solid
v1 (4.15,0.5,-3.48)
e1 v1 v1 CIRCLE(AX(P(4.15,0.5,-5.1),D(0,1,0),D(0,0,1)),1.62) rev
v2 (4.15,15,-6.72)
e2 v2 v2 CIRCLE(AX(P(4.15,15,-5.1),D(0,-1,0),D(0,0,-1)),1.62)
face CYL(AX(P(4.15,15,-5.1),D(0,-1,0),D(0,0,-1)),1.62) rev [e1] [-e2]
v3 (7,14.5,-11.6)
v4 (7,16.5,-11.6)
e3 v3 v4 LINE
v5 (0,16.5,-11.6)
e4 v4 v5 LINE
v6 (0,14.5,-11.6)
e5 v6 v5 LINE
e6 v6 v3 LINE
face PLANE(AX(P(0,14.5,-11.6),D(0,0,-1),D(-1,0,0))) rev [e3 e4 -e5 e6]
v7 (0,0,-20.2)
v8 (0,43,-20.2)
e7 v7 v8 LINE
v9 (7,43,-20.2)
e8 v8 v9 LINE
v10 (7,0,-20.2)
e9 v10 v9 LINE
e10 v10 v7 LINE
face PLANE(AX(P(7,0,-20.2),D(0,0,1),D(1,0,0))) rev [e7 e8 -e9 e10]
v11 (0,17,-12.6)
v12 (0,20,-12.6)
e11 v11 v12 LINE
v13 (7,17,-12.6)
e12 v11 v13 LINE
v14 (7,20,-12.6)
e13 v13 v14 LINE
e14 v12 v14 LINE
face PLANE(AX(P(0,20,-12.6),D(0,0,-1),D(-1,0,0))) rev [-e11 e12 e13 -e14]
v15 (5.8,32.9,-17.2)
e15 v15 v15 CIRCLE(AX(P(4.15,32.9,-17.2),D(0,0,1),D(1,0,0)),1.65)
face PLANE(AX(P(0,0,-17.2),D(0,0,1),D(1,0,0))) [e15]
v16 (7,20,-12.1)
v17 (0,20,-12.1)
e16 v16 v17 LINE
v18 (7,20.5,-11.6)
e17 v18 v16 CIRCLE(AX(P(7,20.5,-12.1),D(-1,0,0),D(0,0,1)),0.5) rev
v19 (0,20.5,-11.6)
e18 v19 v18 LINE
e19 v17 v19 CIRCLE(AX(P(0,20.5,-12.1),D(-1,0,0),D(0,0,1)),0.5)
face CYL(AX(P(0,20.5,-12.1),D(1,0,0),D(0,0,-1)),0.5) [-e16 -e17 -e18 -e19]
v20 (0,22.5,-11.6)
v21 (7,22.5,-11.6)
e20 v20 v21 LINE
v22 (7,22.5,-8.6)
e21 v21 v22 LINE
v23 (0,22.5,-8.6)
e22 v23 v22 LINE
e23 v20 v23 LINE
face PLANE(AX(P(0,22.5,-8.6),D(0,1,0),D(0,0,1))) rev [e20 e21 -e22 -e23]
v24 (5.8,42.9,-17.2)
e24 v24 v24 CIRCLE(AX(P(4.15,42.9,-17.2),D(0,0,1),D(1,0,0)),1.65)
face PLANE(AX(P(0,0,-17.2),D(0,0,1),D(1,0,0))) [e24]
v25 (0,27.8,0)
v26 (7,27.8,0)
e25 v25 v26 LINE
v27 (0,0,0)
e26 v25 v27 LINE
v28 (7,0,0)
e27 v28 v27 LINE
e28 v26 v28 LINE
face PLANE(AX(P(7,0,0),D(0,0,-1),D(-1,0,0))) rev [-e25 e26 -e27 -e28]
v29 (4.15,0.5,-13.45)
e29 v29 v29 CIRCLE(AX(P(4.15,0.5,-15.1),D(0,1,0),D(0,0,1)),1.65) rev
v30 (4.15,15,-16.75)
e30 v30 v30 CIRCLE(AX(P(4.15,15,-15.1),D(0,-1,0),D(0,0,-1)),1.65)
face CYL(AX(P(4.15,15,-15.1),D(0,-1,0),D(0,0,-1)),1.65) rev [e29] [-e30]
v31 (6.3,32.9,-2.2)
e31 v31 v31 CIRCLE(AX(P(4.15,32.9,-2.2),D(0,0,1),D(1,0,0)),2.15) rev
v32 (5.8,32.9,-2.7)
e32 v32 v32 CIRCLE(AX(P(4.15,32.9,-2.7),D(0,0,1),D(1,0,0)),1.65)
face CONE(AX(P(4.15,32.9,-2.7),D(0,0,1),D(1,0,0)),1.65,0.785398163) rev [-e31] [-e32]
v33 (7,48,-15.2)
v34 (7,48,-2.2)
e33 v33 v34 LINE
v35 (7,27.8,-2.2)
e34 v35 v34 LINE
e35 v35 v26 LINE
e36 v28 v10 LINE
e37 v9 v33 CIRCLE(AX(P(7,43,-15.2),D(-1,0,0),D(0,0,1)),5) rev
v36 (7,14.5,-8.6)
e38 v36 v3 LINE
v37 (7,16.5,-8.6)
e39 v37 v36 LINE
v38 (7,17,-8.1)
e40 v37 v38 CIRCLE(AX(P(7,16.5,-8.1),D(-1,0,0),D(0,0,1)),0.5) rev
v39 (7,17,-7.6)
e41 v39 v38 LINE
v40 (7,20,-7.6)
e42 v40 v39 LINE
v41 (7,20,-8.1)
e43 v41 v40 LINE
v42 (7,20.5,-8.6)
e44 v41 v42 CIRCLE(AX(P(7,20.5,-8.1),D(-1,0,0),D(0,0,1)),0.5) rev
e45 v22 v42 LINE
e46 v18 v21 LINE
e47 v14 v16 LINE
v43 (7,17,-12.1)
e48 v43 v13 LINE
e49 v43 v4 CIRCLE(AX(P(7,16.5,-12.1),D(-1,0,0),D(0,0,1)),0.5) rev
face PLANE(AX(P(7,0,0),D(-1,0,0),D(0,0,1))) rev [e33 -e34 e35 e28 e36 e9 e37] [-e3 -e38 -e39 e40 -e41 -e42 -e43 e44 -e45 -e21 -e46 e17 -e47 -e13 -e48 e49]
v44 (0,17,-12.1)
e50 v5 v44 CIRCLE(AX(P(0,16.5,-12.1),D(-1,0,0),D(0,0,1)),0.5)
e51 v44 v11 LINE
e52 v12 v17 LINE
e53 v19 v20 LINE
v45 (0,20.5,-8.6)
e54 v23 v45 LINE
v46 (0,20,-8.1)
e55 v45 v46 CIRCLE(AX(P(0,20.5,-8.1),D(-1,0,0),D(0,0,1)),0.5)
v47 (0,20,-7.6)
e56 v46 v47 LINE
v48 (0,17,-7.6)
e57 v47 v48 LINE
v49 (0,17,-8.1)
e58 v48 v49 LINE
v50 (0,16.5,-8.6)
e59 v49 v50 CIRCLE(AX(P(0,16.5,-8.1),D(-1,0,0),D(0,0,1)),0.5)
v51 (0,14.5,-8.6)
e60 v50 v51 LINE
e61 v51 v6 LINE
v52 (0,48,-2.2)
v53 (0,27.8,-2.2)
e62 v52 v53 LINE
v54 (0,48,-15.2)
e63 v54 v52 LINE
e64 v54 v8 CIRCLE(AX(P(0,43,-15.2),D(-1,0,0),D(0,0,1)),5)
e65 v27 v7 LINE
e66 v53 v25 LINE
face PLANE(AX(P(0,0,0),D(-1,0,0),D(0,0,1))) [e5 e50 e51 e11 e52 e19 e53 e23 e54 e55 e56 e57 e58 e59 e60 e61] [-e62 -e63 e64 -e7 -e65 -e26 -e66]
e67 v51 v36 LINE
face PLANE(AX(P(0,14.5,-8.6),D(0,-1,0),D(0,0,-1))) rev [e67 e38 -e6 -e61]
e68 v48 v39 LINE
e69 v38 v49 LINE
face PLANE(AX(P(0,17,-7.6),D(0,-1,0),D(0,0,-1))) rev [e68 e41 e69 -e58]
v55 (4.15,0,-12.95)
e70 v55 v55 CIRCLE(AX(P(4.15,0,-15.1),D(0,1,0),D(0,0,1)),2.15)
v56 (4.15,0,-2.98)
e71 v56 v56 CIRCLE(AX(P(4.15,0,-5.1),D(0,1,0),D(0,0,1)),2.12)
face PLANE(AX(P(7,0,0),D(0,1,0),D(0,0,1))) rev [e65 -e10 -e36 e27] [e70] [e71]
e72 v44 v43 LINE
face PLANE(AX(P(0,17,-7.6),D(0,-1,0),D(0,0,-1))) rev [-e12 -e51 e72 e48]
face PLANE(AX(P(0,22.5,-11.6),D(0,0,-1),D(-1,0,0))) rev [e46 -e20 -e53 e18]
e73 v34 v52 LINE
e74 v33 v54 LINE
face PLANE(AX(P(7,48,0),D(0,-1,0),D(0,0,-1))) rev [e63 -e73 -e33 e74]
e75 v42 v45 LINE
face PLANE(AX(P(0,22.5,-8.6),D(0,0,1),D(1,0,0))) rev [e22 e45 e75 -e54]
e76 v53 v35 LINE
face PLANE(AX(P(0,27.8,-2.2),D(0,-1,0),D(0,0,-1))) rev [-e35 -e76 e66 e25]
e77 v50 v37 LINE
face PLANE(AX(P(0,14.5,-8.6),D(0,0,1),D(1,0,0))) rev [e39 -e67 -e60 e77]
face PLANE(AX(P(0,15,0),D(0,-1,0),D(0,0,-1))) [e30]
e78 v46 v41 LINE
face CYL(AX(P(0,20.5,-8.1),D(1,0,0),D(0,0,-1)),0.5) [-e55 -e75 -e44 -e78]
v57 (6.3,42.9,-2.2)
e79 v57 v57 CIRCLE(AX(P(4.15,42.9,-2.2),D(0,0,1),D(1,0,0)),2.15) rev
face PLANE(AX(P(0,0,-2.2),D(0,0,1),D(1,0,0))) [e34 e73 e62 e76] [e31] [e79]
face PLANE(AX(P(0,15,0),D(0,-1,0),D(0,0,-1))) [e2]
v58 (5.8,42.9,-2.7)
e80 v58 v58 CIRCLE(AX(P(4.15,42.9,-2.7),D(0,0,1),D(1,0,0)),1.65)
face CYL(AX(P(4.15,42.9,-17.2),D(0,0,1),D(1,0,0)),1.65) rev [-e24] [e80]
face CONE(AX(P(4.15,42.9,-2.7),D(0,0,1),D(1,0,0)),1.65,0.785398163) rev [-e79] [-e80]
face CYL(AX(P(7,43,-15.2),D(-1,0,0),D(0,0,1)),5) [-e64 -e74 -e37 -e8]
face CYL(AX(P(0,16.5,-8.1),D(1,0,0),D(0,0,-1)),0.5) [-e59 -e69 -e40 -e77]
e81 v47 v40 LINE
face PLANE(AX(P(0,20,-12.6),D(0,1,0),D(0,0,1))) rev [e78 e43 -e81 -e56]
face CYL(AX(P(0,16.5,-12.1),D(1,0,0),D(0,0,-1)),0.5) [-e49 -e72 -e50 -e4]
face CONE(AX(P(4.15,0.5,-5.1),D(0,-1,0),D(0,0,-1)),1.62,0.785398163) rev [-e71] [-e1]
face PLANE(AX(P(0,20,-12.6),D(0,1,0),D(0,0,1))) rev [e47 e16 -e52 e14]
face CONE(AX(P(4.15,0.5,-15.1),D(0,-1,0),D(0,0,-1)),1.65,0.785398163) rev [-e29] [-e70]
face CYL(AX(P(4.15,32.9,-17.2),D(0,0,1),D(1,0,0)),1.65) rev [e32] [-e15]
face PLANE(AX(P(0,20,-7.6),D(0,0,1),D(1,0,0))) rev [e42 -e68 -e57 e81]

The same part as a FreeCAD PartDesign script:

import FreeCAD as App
import Part
import Sketcher
from FreeCAD import Vector
Q = App.Units.Quantity


def edges_at(feature, points):
    """Names of the edges that pass closest to the given points."""
    edges = feature.Shape.Edges
    near = lambda p: min(range(len(edges)), key=lambda i: edges[i].distToShape(Part.Vertex(*p))[0])
    return sorted({f"Edge{near(p) + 1}" for p in points})

doc = App.newDocument("Part")
body = doc.addObject("PartDesign::Body", "Body")

# Sketch on YZ plane
sketch1 = body.newObject("Sketcher::SketchObject", "Sketch")
sketch1.AttachmentSupport = (doc.getObject("YZ_Plane"), [""])
sketch1.MapMode = "FlatFace"
sketch1.addGeometry([
    Part.LineSegment(Vector(48, 0, 0), Vector(0, 0, 0)),
    Part.LineSegment(Vector(0, 0, 0), Vector(0, -20, 0)),
    Part.LineSegment(Vector(0, -20, 0), Vector(48, -20, 0)),
    Part.LineSegment(Vector(48, -20, 0), Vector(48, 0, 0)),
], False)
sketch1.addConstraint([
    Sketcher.Constraint("Coincident", 0, 2, 1, 1),
    Sketcher.Constraint("Coincident", 1, 2, 2, 1),
    Sketcher.Constraint("Coincident", 2, 2, 3, 1),
    Sketcher.Constraint("Coincident", 3, 2, 0, 1),
    Sketcher.Constraint("Horizontal", 0),
    Sketcher.Constraint("Vertical", 1),
    Sketcher.Constraint("Horizontal", 2),
    Sketcher.Constraint("Vertical", 3),
    Sketcher.Constraint("Coincident", 0, 2, -1, 1),
    Sketcher.Constraint("DistanceX", 0, 2, 0, 1, Q("48 mm")),
    Sketcher.Constraint("DistanceY", 1, 2, 1, 1, Q("20.2 mm")),
])
pad1 = body.newObject("PartDesign::Pad", "Pad")
pad1.Profile = sketch1
pad1.Length = 7

# Sketch on XY plane
sketch2 = body.newObject("Sketcher::SketchObject", "Sketch001")
sketch2.AttachmentSupport = (doc.getObject("XY_Plane"), [""])
sketch2.MapMode = "FlatFace"
sketch2.addGeometry([
    Part.LineSegment(Vector(0, 48, 0), Vector(0, 28, 0)),
    Part.LineSegment(Vector(0, 28, 0), Vector(7, 28, 0)),
    Part.LineSegment(Vector(7, 28, 0), Vector(7, 48, 0)),
    Part.LineSegment(Vector(7, 48, 0), Vector(0, 48, 0)),
], False)
sketch2.addConstraint([
    Sketcher.Constraint("Coincident", 0, 2, 1, 1),
    Sketcher.Constraint("Coincident", 1, 2, 2, 1),
    Sketcher.Constraint("Coincident", 2, 2, 3, 1),
    Sketcher.Constraint("Coincident", 3, 2, 0, 1),
    Sketcher.Constraint("Vertical", 0),
    Sketcher.Constraint("Horizontal", 1),
    Sketcher.Constraint("Vertical", 2),
    Sketcher.Constraint("Horizontal", 3),
    Sketcher.Constraint("PointOnObject", 0, 2, -2),
    Sketcher.Constraint("DistanceX", 1, 1, 1, 2, Q("7 mm")),
    Sketcher.Constraint("DistanceY", 0, 2, 0, 1, Q("20.2 mm")),
    Sketcher.Constraint("DistanceY", -1, 1, 2, 2, Q("48 mm")),
])
pocket1 = body.newObject("PartDesign::Pocket", "Pocket")
pocket1.Profile = sketch2
pocket1.Length = 2.2

# Sketch on XZ plane
sketch3 = body.newObject("Sketcher::SketchObject", "Sketch002")
sketch3.AttachmentSupport = (doc.getObject("XZ_Plane"), [""])
sketch3.MapMode = "FlatFace"
sketch3.addGeometry([
    Part.Circle(Vector(4.2, -5.1, 0), Vector(0, 0, 1), 1.6),
    Part.Circle(Vector(4.2, -15.1, 0), Vector(0, 0, 1), 1.6),
], False)
sketch3.addConstraint([
    Sketcher.Constraint("Vertical", 0, 3, 1, 3),
    Sketcher.Constraint("Diameter", 1, Q("3.3 mm")),
    Sketcher.Constraint("Diameter", 0, Q("3.24 mm")),
    Sketcher.Constraint("DistanceY", 1, 3, 0, 3, Q("10 mm")),
    Sketcher.Constraint("DistanceY", 0, 3, -1, 1, Q("5.1 mm")),
    Sketcher.Constraint("DistanceX", -1, 1, 0, 3, Q("4.15 mm")),
])
pocket2 = body.newObject("PartDesign::Pocket", "Pocket001")
pocket2.Profile = sketch3
pocket2.Length = 15

# Sketch on XY plane
sketch4 = body.newObject("Sketcher::SketchObject", "Sketch003")
sketch4.AttachmentSupport = (doc.getObject("XY_Plane"), [""])
sketch4.MapMode = "FlatFace"
sketch4.AttachmentOffset = App.Placement(Vector(0, 0, -2.2), App.Rotation())
sketch4.addGeometry([
    Part.Circle(Vector(4.2, 32.9, 0), Vector(0, 0, 1), 1.6),
    Part.Circle(Vector(4.2, 42.9, 0), Vector(0, 0, 1), 1.6),
], False)
sketch4.addConstraint([
    Sketcher.Constraint("Equal", 0, 1),
    Sketcher.Constraint("Vertical", 0, 3, 1, 3),
    Sketcher.Constraint("Diameter", 0, Q("3.3 mm")),
    Sketcher.Constraint("DistanceY", 0, 3, 1, 3, Q("10 mm")),
    Sketcher.Constraint("DistanceY", -1, 1, 0, 3, Q("32.9 mm")),
    Sketcher.Constraint("DistanceX", -1, 1, 0, 3, Q("4.15 mm")),
])
pocket3 = body.newObject("PartDesign::Pocket", "Pocket002")
pocket3.Profile = sketch4
pocket3.Length = 15
doc.recompute()

chamfer = body.newObject("PartDesign::Chamfer", "Chamfer")
chamfer.Base = (pocket3, edges_at(pocket3, [
    (4.15, 0, -3.48),
    (4.15, 0, -13.45),
    (2.5, 42.9, -2.2),
    (2.5, 32.9, -2.2),
]))
chamfer.Size = 0.5
doc.recompute()

fillet = body.newObject("PartDesign::Fillet", "Fillet")
fillet.Base = (chamfer, edges_at(chamfer, [(3.5, 48, -20.2)]))
fillet.Radius = 5

# Sketch on YZ plane
sketch5 = body.newObject("Sketcher::SketchObject", "Sketch004")
sketch5.AttachmentSupport = (doc.getObject("YZ_Plane"), [""])
sketch5.MapMode = "FlatFace"
sketch5.AttachmentOffset = App.Placement(Vector(0, 0, 7), App.Rotation())
sketch5.addGeometry([
    Part.LineSegment(Vector(20, -7.6, 0), Vector(17, -7.6, 0)),
    Part.LineSegment(Vector(17, -7.6, 0), Vector(17, -12.6, 0)),
    Part.LineSegment(Vector(17, -12.6, 0), Vector(20, -12.6, 0)),
    Part.LineSegment(Vector(20, -12.6, 0), Vector(20, -7.6, 0)),
], False)
sketch5.addConstraint([
    Sketcher.Constraint("Coincident", 0, 2, 1, 1),
    Sketcher.Constraint("Coincident", 1, 2, 2, 1),
    Sketcher.Constraint("Coincident", 2, 2, 3, 1),
    Sketcher.Constraint("Coincident", 3, 2, 0, 1),
    Sketcher.Constraint("Horizontal", 0),
    Sketcher.Constraint("Vertical", 1),
    Sketcher.Constraint("Horizontal", 2),
    Sketcher.Constraint("Vertical", 3),
    Sketcher.Constraint("DistanceX", 0, 2, 0, 1, Q("3 mm")),
    Sketcher.Constraint("DistanceY", 1, 2, 1, 1, Q("5 mm")),
    Sketcher.Constraint("DistanceX", -1, 1, 0, 2, Q("17 mm")),
    Sketcher.Constraint("DistanceY", 0, 2, -1, 1, Q("7.6 mm")),
])
pocket4 = body.newObject("PartDesign::Pocket", "Pocket003")
pocket4.Profile = sketch5
pocket4.Length = 7

# Sketch on YZ plane
sketch6 = body.newObject("Sketcher::SketchObject", "Sketch005")
sketch6.AttachmentSupport = (doc.getObject("YZ_Plane"), [""])
sketch6.MapMode = "FlatFace"
sketch6.AttachmentOffset = App.Placement(Vector(0, 0, 7), App.Rotation())
sketch6.addGeometry([
    Part.LineSegment(Vector(22.5, -8.6, 0), Vector(20, -8.6, 0)),  # 0
    Part.LineSegment(Vector(20, -8.6, 0), Vector(20, -11.6, 0)),  # 1
    Part.LineSegment(Vector(20, -11.6, 0), Vector(22.5, -11.6, 0)),  # 2
    Part.LineSegment(Vector(22.5, -11.6, 0), Vector(22.5, -8.6, 0)),  # 3
    Part.LineSegment(Vector(17, -8.6, 0), Vector(14.5, -8.6, 0)),  # 4
    Part.LineSegment(Vector(14.5, -8.6, 0), Vector(14.5, -11.6, 0)),  # 5
    Part.LineSegment(Vector(14.5, -11.6, 0), Vector(17, -11.6, 0)),  # 6
    Part.LineSegment(Vector(17, -11.6, 0), Vector(17, -8.6, 0)),  # 7
], False)
sketch6.addConstraint([
    Sketcher.Constraint("Coincident", 0, 2, 1, 1),
    Sketcher.Constraint("Coincident", 1, 2, 2, 1),
    Sketcher.Constraint("Coincident", 2, 2, 3, 1),
    Sketcher.Constraint("Coincident", 3, 2, 0, 1),
    Sketcher.Constraint("Coincident", 4, 2, 5, 1),
    Sketcher.Constraint("Coincident", 5, 2, 6, 1),
    Sketcher.Constraint("Coincident", 6, 2, 7, 1),
    Sketcher.Constraint("Coincident", 7, 2, 4, 1),
    Sketcher.Constraint("Horizontal", 0),
    Sketcher.Constraint("Vertical", 1),
    Sketcher.Constraint("Horizontal", 2),
    Sketcher.Constraint("Vertical", 3),
    Sketcher.Constraint("Horizontal", 4),
    Sketcher.Constraint("Vertical", 5),
    Sketcher.Constraint("Horizontal", 6),
    Sketcher.Constraint("Vertical", 7),
    Sketcher.Constraint("Horizontal", 3, 2, 4, 2),
    Sketcher.Constraint("Horizontal", 2, 2, 5, 2),
    Sketcher.Constraint("Equal", 2, 4),
    Sketcher.Constraint("DistanceY", 1, 2, 1, 1, Q("3 mm")),
    Sketcher.Constraint("DistanceX", 0, 2, 0, 1, Q("2.5 mm")),
    Sketcher.Constraint("DistanceX", -1, 1, 0, 2, Q("20 mm")),
    Sketcher.Constraint("DistanceX", -1, 1, 6, 2, Q("17 mm")),
    Sketcher.Constraint("DistanceY", 0, 2, -1, 1, Q("8.6 mm")),
])
pocket5 = body.newObject("PartDesign::Pocket", "Pocket004")
pocket5.Profile = sketch6
pocket5.Length = 7
doc.recompute()

fillet2 = body.newObject("PartDesign::Fillet", "Fillet001")
fillet2.Base = (pocket5, edges_at(pocket5, [
    (3.5, 17, -8.6),
    (3.5, 20, -8.6),
    (3.5, 20, -11.6),
    (3.5, 17, -11.6),
]))
fillet2.Radius = 0.5

doc.recompute()
